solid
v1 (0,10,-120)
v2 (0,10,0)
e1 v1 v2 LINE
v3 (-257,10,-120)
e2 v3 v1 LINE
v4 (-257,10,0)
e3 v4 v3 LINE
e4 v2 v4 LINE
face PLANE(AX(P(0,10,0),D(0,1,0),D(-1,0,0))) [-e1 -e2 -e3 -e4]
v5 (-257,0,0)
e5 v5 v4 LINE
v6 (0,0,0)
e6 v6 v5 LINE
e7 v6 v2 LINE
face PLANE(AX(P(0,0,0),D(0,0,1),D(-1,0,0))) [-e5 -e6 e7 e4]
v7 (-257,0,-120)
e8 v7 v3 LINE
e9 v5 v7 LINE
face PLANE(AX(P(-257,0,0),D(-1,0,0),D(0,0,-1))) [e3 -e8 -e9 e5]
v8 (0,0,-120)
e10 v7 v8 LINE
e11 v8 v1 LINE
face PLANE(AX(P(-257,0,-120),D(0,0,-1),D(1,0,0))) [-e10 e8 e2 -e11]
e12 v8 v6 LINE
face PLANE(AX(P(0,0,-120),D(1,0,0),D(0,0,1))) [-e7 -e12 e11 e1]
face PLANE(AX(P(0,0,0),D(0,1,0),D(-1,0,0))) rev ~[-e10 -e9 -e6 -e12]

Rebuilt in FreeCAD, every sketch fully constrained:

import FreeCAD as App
import Part
import Sketcher
Q = App.Units.Quantity

doc = App.newDocument("Part")
params = doc.addObject("Spreadsheet::Sheet", "Params")
for row, (alias, value) in enumerate([
    ("sketch1_width", "257 mm"),
    ("sketch1_height", "120 mm"),
    ("pad1_length", "10 mm"),
], start=1):
    params.set(f"A{row}", alias)
    params.set(f"B{row}", "=" + value)
    params.setAlias(f"B{row}", alias)

body = doc.addObject("PartDesign::Body", "Body")

# Sketch on XZ plane
sketch1 = body.newObject("Sketcher::SketchObject", "Sketch")
sketch1.AttachmentSupport = (doc.getObject("XZ_Plane"), [""])
sketch1.MapMode = "FlatFace"
sketch1.addGeometry(Part.LineSegment(App.Vector(-257, 0, 0), App.Vector(0, 0, 0)), False)
sketch1.addGeometry(Part.LineSegment(App.Vector(0, 0, 0), App.Vector(0, -120, 0)), False)
sketch1.addGeometry(Part.LineSegment(App.Vector(0, -120, 0), App.Vector(-257, -120, 0)), False)
sketch1.addGeometry(Part.LineSegment(App.Vector(-257, -120, 0), App.Vector(-257, 0, 0)), False)
sketch1.addConstraint(Sketcher.Constraint("Coincident", 0, 2, 1, 1))
sketch1.addConstraint(Sketcher.Constraint("Coincident", 1, 2, 2, 1))
sketch1.addConstraint(Sketcher.Constraint("Coincident", 2, 2, 3, 1))
sketch1.addConstraint(Sketcher.Constraint("Coincident", 3, 2, 0, 1))
sketch1.addConstraint(Sketcher.Constraint("Horizontal", 0))
sketch1.addConstraint(Sketcher.Constraint("Vertical", 1))
sketch1.addConstraint(Sketcher.Constraint("Horizontal", 2))
sketch1.addConstraint(Sketcher.Constraint("Vertical", 3))
sketch1.addConstraint(Sketcher.Constraint("Coincident", 0, 2, -1, 1))
sketch1.addConstraint(Sketcher.Constraint("DistanceX", 0, 1, 0, 2, Q("257 mm")))
sketch1.addConstraint(Sketcher.Constraint("DistanceY", 1, 2, 1, 1, Q("120 mm")))
sketch1.setExpression("Constraints[9]", "Params.sketch1_width")
sketch1.setExpression("Constraints[10]", "Params.sketch1_height")
pad1 = body.newObject("PartDesign::Pad", "Pad")
pad1.Profile = sketch1
pad1.setExpression("Length", "Params.pad1_length")
pad1.Reversed = True

doc.recompute()
